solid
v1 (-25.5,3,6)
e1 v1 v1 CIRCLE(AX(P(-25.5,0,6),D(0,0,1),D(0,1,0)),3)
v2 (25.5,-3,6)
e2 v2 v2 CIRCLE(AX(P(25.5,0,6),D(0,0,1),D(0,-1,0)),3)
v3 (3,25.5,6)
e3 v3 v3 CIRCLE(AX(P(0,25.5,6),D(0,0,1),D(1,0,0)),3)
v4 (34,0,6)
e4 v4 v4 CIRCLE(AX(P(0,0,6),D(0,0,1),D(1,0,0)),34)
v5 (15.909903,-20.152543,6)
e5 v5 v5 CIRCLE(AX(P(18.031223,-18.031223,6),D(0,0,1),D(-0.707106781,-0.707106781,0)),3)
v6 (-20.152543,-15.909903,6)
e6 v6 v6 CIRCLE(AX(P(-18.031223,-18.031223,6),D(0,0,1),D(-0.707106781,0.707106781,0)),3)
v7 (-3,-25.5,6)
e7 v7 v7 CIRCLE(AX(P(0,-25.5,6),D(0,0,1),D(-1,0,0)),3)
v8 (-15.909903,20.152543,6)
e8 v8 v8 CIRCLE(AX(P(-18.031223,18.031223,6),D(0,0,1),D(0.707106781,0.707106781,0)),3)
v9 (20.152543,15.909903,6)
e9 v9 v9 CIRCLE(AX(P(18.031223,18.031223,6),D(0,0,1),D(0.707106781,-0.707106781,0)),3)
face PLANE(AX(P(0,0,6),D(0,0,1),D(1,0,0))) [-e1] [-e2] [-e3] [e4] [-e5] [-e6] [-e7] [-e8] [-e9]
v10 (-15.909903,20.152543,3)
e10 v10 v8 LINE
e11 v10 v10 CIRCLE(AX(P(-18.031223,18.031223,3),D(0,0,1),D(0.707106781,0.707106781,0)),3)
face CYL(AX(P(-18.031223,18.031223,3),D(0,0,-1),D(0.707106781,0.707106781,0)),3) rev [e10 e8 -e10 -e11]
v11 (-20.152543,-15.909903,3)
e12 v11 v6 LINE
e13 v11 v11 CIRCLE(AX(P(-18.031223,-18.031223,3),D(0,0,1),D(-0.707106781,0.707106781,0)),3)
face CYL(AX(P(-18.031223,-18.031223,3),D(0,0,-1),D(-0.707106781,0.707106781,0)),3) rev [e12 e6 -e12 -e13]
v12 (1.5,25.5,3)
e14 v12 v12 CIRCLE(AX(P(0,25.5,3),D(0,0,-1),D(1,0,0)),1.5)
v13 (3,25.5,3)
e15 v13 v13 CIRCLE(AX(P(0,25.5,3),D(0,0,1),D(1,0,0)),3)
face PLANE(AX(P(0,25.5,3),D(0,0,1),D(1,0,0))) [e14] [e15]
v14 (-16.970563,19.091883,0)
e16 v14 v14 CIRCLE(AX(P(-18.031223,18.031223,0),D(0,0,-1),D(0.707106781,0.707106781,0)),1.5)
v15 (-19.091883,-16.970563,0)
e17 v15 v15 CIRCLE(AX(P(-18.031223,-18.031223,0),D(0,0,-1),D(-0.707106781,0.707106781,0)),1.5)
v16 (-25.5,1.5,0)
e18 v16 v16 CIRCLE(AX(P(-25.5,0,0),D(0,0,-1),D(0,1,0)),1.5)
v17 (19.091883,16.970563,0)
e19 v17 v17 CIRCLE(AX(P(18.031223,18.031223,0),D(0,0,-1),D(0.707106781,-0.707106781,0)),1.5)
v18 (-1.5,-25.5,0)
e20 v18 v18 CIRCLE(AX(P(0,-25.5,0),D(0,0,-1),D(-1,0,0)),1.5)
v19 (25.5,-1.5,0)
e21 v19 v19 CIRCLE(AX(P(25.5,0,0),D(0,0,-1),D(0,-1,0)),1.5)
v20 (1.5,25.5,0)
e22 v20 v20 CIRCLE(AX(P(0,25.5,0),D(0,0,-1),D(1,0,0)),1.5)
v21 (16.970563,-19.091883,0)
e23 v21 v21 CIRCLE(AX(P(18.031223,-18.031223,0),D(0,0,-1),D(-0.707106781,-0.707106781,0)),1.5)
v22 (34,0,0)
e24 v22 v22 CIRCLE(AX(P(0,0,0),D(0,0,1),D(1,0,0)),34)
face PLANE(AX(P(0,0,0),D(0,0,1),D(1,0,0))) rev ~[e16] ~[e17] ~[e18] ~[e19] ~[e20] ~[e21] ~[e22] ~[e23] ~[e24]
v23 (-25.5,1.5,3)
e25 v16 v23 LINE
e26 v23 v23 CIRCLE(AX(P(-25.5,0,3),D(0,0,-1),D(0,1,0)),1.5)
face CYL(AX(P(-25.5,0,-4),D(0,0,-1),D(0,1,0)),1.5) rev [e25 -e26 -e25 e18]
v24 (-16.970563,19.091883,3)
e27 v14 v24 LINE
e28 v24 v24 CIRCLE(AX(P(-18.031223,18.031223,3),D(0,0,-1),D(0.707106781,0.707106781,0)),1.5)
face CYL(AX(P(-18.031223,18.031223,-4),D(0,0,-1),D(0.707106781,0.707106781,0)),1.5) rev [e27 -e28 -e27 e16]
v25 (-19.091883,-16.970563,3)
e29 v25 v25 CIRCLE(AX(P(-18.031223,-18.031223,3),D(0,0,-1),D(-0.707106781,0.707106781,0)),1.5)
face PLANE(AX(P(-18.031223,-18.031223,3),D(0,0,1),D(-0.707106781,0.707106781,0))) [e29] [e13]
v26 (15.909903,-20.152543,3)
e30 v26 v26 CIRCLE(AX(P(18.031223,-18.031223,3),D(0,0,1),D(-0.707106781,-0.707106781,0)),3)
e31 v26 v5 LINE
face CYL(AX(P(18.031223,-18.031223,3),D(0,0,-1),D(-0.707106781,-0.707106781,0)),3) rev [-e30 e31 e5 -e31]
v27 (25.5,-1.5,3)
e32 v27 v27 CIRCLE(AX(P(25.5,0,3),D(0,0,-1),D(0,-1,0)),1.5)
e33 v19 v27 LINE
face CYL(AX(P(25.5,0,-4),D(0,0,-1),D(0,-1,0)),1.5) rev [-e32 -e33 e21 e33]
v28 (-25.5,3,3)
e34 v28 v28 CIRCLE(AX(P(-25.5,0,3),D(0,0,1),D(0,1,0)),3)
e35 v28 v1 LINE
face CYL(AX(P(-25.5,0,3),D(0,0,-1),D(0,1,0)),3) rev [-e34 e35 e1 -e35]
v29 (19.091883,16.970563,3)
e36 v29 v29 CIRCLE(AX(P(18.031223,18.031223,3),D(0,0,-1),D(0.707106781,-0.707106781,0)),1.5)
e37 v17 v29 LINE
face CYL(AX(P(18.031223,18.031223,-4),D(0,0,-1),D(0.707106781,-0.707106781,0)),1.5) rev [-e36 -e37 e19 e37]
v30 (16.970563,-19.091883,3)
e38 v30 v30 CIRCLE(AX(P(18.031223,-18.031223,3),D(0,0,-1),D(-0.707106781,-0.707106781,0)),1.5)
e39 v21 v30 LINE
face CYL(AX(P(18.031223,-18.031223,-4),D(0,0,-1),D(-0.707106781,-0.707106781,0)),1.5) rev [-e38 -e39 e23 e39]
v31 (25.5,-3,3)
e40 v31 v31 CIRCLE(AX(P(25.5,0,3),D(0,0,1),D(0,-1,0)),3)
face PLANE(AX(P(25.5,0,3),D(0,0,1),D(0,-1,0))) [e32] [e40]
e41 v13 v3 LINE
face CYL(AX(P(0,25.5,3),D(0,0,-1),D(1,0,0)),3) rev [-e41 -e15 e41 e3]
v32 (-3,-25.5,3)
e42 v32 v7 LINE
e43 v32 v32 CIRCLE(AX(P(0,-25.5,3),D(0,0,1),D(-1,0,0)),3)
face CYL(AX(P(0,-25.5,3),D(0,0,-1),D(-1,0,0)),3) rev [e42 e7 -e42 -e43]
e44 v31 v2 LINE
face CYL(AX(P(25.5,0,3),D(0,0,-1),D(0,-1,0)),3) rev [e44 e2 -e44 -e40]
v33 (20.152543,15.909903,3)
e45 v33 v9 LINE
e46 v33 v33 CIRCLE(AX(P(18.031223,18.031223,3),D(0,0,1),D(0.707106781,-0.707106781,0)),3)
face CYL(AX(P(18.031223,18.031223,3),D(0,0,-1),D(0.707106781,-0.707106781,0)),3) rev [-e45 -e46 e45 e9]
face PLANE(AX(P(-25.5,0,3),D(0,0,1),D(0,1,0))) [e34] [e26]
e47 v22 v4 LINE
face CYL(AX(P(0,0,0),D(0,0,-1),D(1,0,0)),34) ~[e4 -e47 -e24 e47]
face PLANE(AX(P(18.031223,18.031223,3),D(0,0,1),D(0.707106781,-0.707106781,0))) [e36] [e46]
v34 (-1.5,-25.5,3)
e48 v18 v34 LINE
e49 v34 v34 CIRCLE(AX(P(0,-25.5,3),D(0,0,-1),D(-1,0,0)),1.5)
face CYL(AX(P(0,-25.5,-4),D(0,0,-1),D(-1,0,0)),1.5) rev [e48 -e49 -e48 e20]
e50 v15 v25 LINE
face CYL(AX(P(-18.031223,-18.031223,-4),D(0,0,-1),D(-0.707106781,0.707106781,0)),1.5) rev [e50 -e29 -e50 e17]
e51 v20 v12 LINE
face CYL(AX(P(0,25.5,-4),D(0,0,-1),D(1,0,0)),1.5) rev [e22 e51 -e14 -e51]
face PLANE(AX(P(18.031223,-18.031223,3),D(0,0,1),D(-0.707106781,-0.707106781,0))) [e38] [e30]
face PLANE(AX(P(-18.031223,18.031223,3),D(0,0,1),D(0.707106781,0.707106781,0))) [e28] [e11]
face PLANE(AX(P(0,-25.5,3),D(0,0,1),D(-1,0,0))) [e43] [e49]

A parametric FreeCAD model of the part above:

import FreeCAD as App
import Part
import Sketcher

V = App.Vector

doc = App.newDocument("Part")
body = doc.addObject("PartDesign::Body", "Body")

sketch1 = body.newObject("Sketcher::SketchObject", "Sketch")
sketch1.AttachmentSupport = (doc.getObject("XY_Plane"), [""])
sketch1.MapMode = "FlatFace"
sketch1.addGeometry(Part.Circle(V(0, 0, 0), V(0, 0, 1), 1.5), False)
sketch1.addConstraint([
    Sketcher.Constraint("Coincident", 0, 3, -1, 1),
    Sketcher.Constraint("Diameter", 0, 3.0),
])
pad1 = body.newObject("PartDesign::Pad", "Pad")
pad1.Profile = sketch1
pad1.Length = 20
body2 = doc.addObject("PartDesign::Body", "Body001")
doc.recompute()

body.Placement = App.Placement(V(-18.031223, 18.031223, -4), App.Rotation(V(0, 0, 1), 45))
boolean = body2.newObject("PartDesign::Boolean", "Boolean")
boolean.Type = "Fuse"
boolean.addObjects([body])
body3 = doc.addObject("PartDesign::Body", "Body002")

sketch2 = body3.newObject("Sketcher::SketchObject", "Sketch001")
sketch2.AttachmentSupport = (doc.getObject("XY_Plane002"), [""])
sketch2.MapMode = "FlatFace"
sketch2.AttachmentOffset = App.Placement(V(0, 0, -4), App.Rotation())
sketch2.addGeometry(Part.Circle(V(-25.5, 0, 0), V(0, 0, 1), 1.5), False)
sketch2.addConstraint([
    Sketcher.Constraint("PointOnObject", 0, 3, -1),
    Sketcher.Constraint("Diameter", 0, 3.0),
    Sketcher.Constraint("DistanceX", 0, 3, -1, 1, 25.5),
])
pad2 = body3.newObject("PartDesign::Pad", "Pad001")
pad2.Profile = sketch2
pad2.Length = 20
body4 = doc.addObject("PartDesign::Body", "Body003")

sketch3 = body4.newObject("Sketcher::SketchObject", "Sketch002")
sketch3.AttachmentSupport = (doc.getObject("XY_Plane003"), [""])
sketch3.MapMode = "FlatFace"
sketch3.addGeometry(Part.Circle(V(0, 0, 0), V(0, 0, 1), 1.5), False)
sketch3.addConstraint([
    Sketcher.Constraint("Coincident", 0, 3, -1, 1),
    Sketcher.Constraint("Diameter", 0, 3.0),
])
pad3 = body4.newObject("PartDesign::Pad", "Pad002")
pad3.Profile = sketch3
pad3.Length = 20
body5 = doc.addObject("PartDesign::Body", "Body004")
doc.recompute()

body4.Placement = App.Placement(V(-18.031223, -18.031223, -4), App.Rotation(V(0, 0, 1), 135))
boolean2 = body5.newObject("PartDesign::Boolean", "Boolean001")
boolean2.Type = "Fuse"
boolean2.addObjects([body4])
body6 = doc.addObject("PartDesign::Body", "Body005")

sketch4 = body6.newObject("Sketcher::SketchObject", "Sketch003")
sketch4.AttachmentSupport = (doc.getObject("XY_Plane005"), [""])
sketch4.MapMode = "FlatFace"
sketch4.AttachmentOffset = App.Placement(V(0, 0, -4), App.Rotation())
sketch4.addGeometry(Part.Circle(V(0, -25.5, 0), V(0, 0, 1), 1.5), False)
sketch4.addConstraint([
    Sketcher.Constraint("PointOnObject", 0, 3, -2),
    Sketcher.Constraint("Diameter", 0, 3.0),
    Sketcher.Constraint("DistanceY", 0, 3, -1, 1, 25.5),
])
pad4 = body6.newObject("PartDesign::Pad", "Pad003")
pad4.Profile = sketch4
pad4.Length = 20
body7 = doc.addObject("PartDesign::Body", "Body006")

sketch5 = body7.newObject("Sketcher::SketchObject", "Sketch004")
sketch5.AttachmentSupport = (doc.getObject("XY_Plane006"), [""])
sketch5.MapMode = "FlatFace"
sketch5.addGeometry(Part.Circle(V(0, 0, 0), V(0, 0, 1), 1.5), False)
sketch5.addConstraint([
    Sketcher.Constraint("Coincident", 0, 3, -1, 1),
    Sketcher.Constraint("Diameter", 0, 3.0),
])
pad5 = body7.newObject("PartDesign::Pad", "Pad004")
pad5.Profile = sketch5
pad5.Length = 20
body8 = doc.addObject("PartDesign::Body", "Body007")
doc.recompute()

body7.Placement = App.Placement(V(18.031223, -18.031223, -4), App.Rotation(V(0, 0, 1), 225))
boolean3 = body8.newObject("PartDesign::Boolean", "Boolean002")
boolean3.Type = "Fuse"
boolean3.addObjects([body7])
body9 = doc.addObject("PartDesign::Body", "Body008")

sketch6 = body9.newObject("Sketcher::SketchObject", "Sketch005")
sketch6.AttachmentSupport = (doc.getObject("XY_Plane008"), [""])
sketch6.MapMode = "FlatFace"
sketch6.AttachmentOffset = App.Placement(V(0, 0, -4), App.Rotation())
sketch6.addGeometry(Part.Circle(V(25.5, 0, 0), V(0, 0, 1), 1.5), False)
sketch6.addConstraint([
    Sketcher.Constraint("PointOnObject", 0, 3, -1),
    Sketcher.Constraint("Diameter", 0, 3.0),
    Sketcher.Constraint("DistanceX", -1, 1, 0, 3, 25.5),
])
pad6 = body9.newObject("PartDesign::Pad", "Pad005")
pad6.Profile = sketch6
pad6.Length = 20
body10 = doc.addObject("PartDesign::Body", "Body009")

sketch7 = body10.newObject("Sketcher::SketchObject", "Sketch006")
sketch7.AttachmentSupport = (doc.getObject("XY_Plane009"), [""])
sketch7.MapMode = "FlatFace"
sketch7.addGeometry(Part.Circle(V(0, 0, 0), V(0, 0, 1), 1.5), False)
sketch7.addConstraint([
    Sketcher.Constraint("Coincident", 0, 3, -1, 1),
    Sketcher.Constraint("Diameter", 0, 3.0),
])
pad7 = body10.newObject("PartDesign::Pad", "Pad006")
pad7.Profile = sketch7
pad7.Length = 20
body11 = doc.addObject("PartDesign::Body", "Body010")
doc.recompute()

body10.Placement = App.Placement(V(18.031223, 18.031223, -4), App.Rotation(V(0, 0, -1), 45))
boolean4 = body11.newObject("PartDesign::Boolean", "Boolean003")
boolean4.Type = "Fuse"
boolean4.addObjects([body10])
body12 = doc.addObject("PartDesign::Body", "Body011")
body12.AllowCompound = True

sketch8 = body12.newObject("Sketcher::SketchObject", "Sketch007")
sketch8.AttachmentSupport = (doc.getObject("XY_Plane011"), [""])
sketch8.MapMode = "FlatFace"
sketch8.AttachmentOffset = App.Placement(V(0, 0, -4), App.Rotation())
sketch8.addGeometry(Part.Circle(V(0, 25.5, 0), V(0, 0, 1), 1.5), False)
sketch8.addConstraint([
    Sketcher.Constraint("PointOnObject", 0, 3, -2),
    Sketcher.Constraint("Diameter", 0, 3.0),
    Sketcher.Constraint("DistanceY", -1, 1, 0, 3, 25.5),
])
pad8 = body12.newObject("PartDesign::Pad", "Pad007")
pad8.Profile = sketch8
pad8.Length = 20
doc.recompute()

boolean5 = body12.newObject("PartDesign::Boolean", "Boolean004")
boolean5.Type = "Fuse"
boolean5.addObjects([body2])
doc.recompute()

boolean6 = body12.newObject("PartDesign::Boolean", "Boolean005")
boolean6.Type = "Fuse"
boolean6.addObjects([body3])
doc.recompute()

boolean7 = body12.newObject("PartDesign::Boolean", "Boolean006")
boolean7.Type = "Fuse"
boolean7.addObjects([body5])
doc.recompute()

boolean8 = body12.newObject("PartDesign::Boolean", "Boolean007")
boolean8.Type = "Fuse"
boolean8.addObjects([body6])
doc.recompute()

boolean9 = body12.newObject("PartDesign::Boolean", "Boolean008")
boolean9.Type = "Fuse"
boolean9.addObjects([body8])
doc.recompute()

boolean10 = body12.newObject("PartDesign::Boolean", "Boolean009")
boolean10.Type = "Fuse"
boolean10.addObjects([body9])
doc.recompute()

boolean11 = body12.newObject("PartDesign::Boolean", "Boolean010")
boolean11.Type = "Fuse"
boolean11.addObjects([body11])
body13 = doc.addObject("PartDesign::Body", "Body012")

sketch9 = body13.newObject("Sketcher::SketchObject", "Sketch008")
sketch9.AttachmentSupport = (doc.getObject("XY_Plane012"), [""])
sketch9.MapMode = "FlatFace"
sketch9.addGeometry(Part.Circle(V(0, 0, 0), V(0, 0, 1), 3), False)
sketch9.addConstraint([
    Sketcher.Constraint("Coincident", 0, 3, -1, 1),
    Sketcher.Constraint("Diameter", 0, 6.0),
])
pad9 = body13.newObject("PartDesign::Pad", "Pad008")
pad9.Profile = sketch9
pad9.Length = 3
body14 = doc.addObject("PartDesign::Body", "Body013")
doc.recompute()

body13.Placement = App.Placement(V(-18.031223, 18.031223, 3), App.Rotation(V(0, 0, 1), 45))
boolean12 = body14.newObject("PartDesign::Boolean", "Boolean011")
boolean12.Type = "Fuse"
boolean12.addObjects([body13])
body15 = doc.addObject("PartDesign::Body", "Body014")

sketch10 = body15.newObject("Sketcher::SketchObject", "Sketch009")
sketch10.AttachmentSupport = (doc.getObject("XY_Plane014"), [""])
sketch10.MapMode = "FlatFace"
sketch10.AttachmentOffset = App.Placement(V(0, 0, 3), App.Rotation())
sketch10.addGeometry(Part.Circle(V(-25.5, 0, 0), V(0, 0, 1), 3), False)
sketch10.addConstraint([
    Sketcher.Constraint("PointOnObject", 0, 3, -1),
    Sketcher.Constraint("Diameter", 0, 6.0),
    Sketcher.Constraint("DistanceX", 0, 3, -1, 1, 25.5),
])
pad10 = body15.newObject("PartDesign::Pad", "Pad009")
pad10.Profile = sketch10
pad10.Length = 3
body16 = doc.addObject("PartDesign::Body", "Body015")

sketch11 = body16.newObject("Sketcher::SketchObject", "Sketch010")
sketch11.AttachmentSupport = (doc.getObject("XY_Plane015"), [""])
sketch11.MapMode = "FlatFace"
sketch11.addGeometry(Part.Circle(V(0, 0, 0), V(0, 0, 1), 3), False)
sketch11.addConstraint([
    Sketcher.Constraint("Coincident", 0, 3, -1, 1),
    Sketcher.Constraint("Diameter", 0, 6.0),
])
pad11 = body16.newObject("PartDesign::Pad", "Pad010")
pad11.Profile = sketch11
pad11.Length = 3
body17 = doc.addObject("PartDesign::Body", "Body016")
doc.recompute()

body16.Placement = App.Placement(V(-18.031223, -18.031223, 3), App.Rotation(V(0, 0, 1), 135))
boolean13 = body17.newObject("PartDesign::Boolean", "Boolean012")
boolean13.Type = "Fuse"
boolean13.addObjects([body16])
body18 = doc.addObject("PartDesign::Body", "Body017")

sketch12 = body18.newObject("Sketcher::SketchObject", "Sketch011")
sketch12.AttachmentSupport = (doc.getObject("XY_Plane017"), [""])
sketch12.MapMode = "FlatFace"
sketch12.AttachmentOffset = App.Placement(V(0, 0, 3), App.Rotation())
sketch12.addGeometry(Part.Circle(V(0, -25.5, 0), V(0, 0, 1), 3), False)
sketch12.addConstraint([
    Sketcher.Constraint("PointOnObject", 0, 3, -2),
    Sketcher.Constraint("Diameter", 0, 6.0),
    Sketcher.Constraint("DistanceY", 0, 3, -1, 1, 25.5),
])
pad12 = body18.newObject("PartDesign::Pad", "Pad011")
pad12.Profile = sketch12
pad12.Length = 3
body19 = doc.addObject("PartDesign::Body", "Body018")

sketch13 = body19.newObject("Sketcher::SketchObject", "Sketch012")
sketch13.AttachmentSupport = (doc.getObject("XY_Plane018"), [""])
sketch13.MapMode = "FlatFace"
sketch13.addGeometry(Part.Circle(V(0, 0, 0), V(0, 0, 1), 3), False)
sketch13.addConstraint([
    Sketcher.Constraint("Coincident", 0, 3, -1, 1),
    Sketcher.Constraint("Diameter", 0, 6.0),
])
pad13 = body19.newObject("PartDesign::Pad", "Pad012")
pad13.Profile = sketch13
pad13.Length = 3
body20 = doc.addObject("PartDesign::Body", "Body019")
doc.recompute()

body19.Placement = App.Placement(V(18.031223, -18.031223, 3), App.Rotation(V(0, 0, 1), 225))
boolean14 = body20.newObject("PartDesign::Boolean", "Boolean013")
boolean14.Type = "Fuse"
boolean14.addObjects([body19])
body21 = doc.addObject("PartDesign::Body", "Body020")

sketch14 = body21.newObject("Sketcher::SketchObject", "Sketch013")
sketch14.AttachmentSupport = (doc.getObject("XY_Plane020"), [""])
sketch14.MapMode = "FlatFace"
sketch14.AttachmentOffset = App.Placement(V(0, 0, 3), App.Rotation())
sketch14.addGeometry(Part.Circle(V(25.5, 0, 0), V(0, 0, 1), 3), False)
sketch14.addConstraint([
    Sketcher.Constraint("PointOnObject", 0, 3, -1),
    Sketcher.Constraint("Diameter", 0, 6.0),
    Sketcher.Constraint("DistanceX", -1, 1, 0, 3, 25.5),
])
pad14 = body21.newObject("PartDesign::Pad", "Pad013")
pad14.Profile = sketch14
pad14.Length = 3
body22 = doc.addObject("PartDesign::Body", "Body021")

sketch15 = body22.newObject("Sketcher::SketchObject", "Sketch014")
sketch15.AttachmentSupport = (doc.getObject("XY_Plane021"), [""])
sketch15.MapMode = "FlatFace"
sketch15.addGeometry(Part.Circle(V(0, 0, 0), V(0, 0, 1), 3), False)
sketch15.addConstraint([
    Sketcher.Constraint("Coincident", 0, 3, -1, 1),
    Sketcher.Constraint("Diameter", 0, 6.0),
])
pad15 = body22.newObject("PartDesign::Pad", "Pad014")
pad15.Profile = sketch15
pad15.Length = 3
body23 = doc.addObject("PartDesign::Body", "Body022")
doc.recompute()

body22.Placement = App.Placement(V(18.031223, 18.031223, 3), App.Rotation(V(0, 0, -1), 45))
boolean15 = body23.newObject("PartDesign::Boolean", "Boolean014")
boolean15.Type = "Fuse"
boolean15.addObjects([body22])
body24 = doc.addObject("PartDesign::Body", "Body023")
body24.AllowCompound = True

sketch16 = body24.newObject("Sketcher::SketchObject", "Sketch015")
sketch16.AttachmentSupport = (doc.getObject("XY_Plane023"), [""])
sketch16.MapMode = "FlatFace"
sketch16.AttachmentOffset = App.Placement(V(0, 0, 3), App.Rotation())
sketch16.addGeometry(Part.Circle(V(0, 25.5, 0), V(0, 0, 1), 3), False)
sketch16.addConstraint([
    Sketcher.Constraint("PointOnObject", 0, 3, -2),
    Sketcher.Constraint("Diameter", 0, 6.0),
    Sketcher.Constraint("DistanceY", -1, 1, 0, 3, 25.5),
])
pad16 = body24.newObject("PartDesign::Pad", "Pad015")
pad16.Profile = sketch16
pad16.Length = 3
doc.recompute()

boolean16 = body24.newObject("PartDesign::Boolean", "Boolean015")
boolean16.Type = "Fuse"
boolean16.addObjects([body14])
doc.recompute()

boolean17 = body24.newObject("PartDesign::Boolean", "Boolean016")
boolean17.Type = "Fuse"
boolean17.addObjects([body15])
doc.recompute()

boolean18 = body24.newObject("PartDesign::Boolean", "Boolean017")
boolean18.Type = "Fuse"
boolean18.addObjects([body17])
doc.recompute()

boolean19 = body24.newObject("PartDesign::Boolean", "Boolean018")
boolean19.Type = "Fuse"
boolean19.addObjects([body18])
doc.recompute()

boolean20 = body24.newObject("PartDesign::Boolean", "Boolean019")
boolean20.Type = "Fuse"
boolean20.addObjects([body20])
doc.recompute()

boolean21 = body24.newObject("PartDesign::Boolean", "Boolean020")
boolean21.Type = "Fuse"
boolean21.addObjects([body21])
doc.recompute()

boolean22 = body24.newObject("PartDesign::Boolean", "Boolean021")
boolean22.Type = "Fuse"
boolean22.addObjects([body23])
body25 = doc.addObject("PartDesign::Body", "Body024")

sketch17 = body25.newObject("Sketcher::SketchObject", "Sketch016")
sketch17.AttachmentSupport = (doc.getObject("XY_Plane024"), [""])
sketch17.MapMode = "FlatFace"
sketch17.addGeometry(Part.Circle(V(0, 0, 0), V(0, 0, 1), 34), False)
sketch17.addConstraint([
    Sketcher.Constraint("Coincident", 0, 3, -1, 1),
    Sketcher.Constraint("Diameter", 0, 68.0),
])
pad17 = body25.newObject("PartDesign::Pad", "Pad016")
pad17.Profile = sketch17
pad17.Length = 6
doc.recompute()

boolean23 = body25.newObject("PartDesign::Boolean", "Boolean022")
boolean23.Type = "Cut"
boolean23.addObjects([body24])
doc.recompute()

boolean24 = body25.newObject("PartDesign::Boolean", "Boolean023")
boolean24.Type = "Cut"
boolean24.addObjects([body12])

doc.recompute()
